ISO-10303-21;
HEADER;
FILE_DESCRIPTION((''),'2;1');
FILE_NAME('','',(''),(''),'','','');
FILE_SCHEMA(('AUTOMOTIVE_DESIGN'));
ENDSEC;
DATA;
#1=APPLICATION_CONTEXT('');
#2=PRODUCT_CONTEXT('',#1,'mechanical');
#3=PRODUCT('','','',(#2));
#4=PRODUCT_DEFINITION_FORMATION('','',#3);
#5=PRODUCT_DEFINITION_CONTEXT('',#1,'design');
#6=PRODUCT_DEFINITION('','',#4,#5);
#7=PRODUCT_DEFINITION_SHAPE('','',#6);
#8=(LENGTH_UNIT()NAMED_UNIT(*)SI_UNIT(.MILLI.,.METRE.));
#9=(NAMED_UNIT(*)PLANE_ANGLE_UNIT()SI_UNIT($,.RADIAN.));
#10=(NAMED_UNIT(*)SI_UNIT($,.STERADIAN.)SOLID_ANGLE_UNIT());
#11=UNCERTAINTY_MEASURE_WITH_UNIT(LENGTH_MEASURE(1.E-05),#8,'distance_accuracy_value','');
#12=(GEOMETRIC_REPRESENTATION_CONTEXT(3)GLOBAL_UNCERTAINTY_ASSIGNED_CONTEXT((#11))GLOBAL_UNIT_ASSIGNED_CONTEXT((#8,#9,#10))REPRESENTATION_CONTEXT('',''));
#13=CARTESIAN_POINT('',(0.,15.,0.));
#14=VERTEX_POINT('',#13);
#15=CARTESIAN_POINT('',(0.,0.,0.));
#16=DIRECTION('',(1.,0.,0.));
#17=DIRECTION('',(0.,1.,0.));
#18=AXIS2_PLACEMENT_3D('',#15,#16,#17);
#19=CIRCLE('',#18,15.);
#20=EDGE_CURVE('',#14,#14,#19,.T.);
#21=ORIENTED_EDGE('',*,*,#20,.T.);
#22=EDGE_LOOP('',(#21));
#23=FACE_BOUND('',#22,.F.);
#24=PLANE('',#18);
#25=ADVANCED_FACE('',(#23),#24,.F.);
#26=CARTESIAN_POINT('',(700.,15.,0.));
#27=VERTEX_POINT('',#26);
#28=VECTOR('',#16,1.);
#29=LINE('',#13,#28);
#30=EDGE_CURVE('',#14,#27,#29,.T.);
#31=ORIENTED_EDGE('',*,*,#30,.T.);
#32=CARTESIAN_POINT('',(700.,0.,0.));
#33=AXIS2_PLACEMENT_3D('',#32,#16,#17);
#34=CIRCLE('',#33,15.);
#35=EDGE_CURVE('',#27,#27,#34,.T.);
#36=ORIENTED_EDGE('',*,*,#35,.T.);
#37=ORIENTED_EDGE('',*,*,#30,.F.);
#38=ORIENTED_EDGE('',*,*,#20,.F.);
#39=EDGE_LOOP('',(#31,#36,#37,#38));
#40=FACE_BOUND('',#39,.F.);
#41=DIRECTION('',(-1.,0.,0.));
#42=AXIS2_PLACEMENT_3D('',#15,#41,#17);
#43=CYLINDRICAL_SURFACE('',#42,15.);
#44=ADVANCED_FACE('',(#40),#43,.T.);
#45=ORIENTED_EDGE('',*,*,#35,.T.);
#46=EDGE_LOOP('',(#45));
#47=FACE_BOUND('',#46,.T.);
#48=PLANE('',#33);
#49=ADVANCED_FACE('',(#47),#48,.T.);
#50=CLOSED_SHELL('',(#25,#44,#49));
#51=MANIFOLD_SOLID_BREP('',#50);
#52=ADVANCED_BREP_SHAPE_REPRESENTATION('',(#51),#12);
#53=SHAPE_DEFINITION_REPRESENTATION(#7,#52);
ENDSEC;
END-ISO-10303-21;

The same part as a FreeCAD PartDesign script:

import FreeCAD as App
import Part
import Sketcher
Q = App.Units.Quantity

doc = App.newDocument("Part")
body = doc.addObject("PartDesign::Body", "Body")

# Sketch on YZ plane
sketch1 = body.newObject("Sketcher::SketchObject", "Sketch")
sketch1.AttachmentSupport = (doc.getObject("YZ_Plane"), [""])
sketch1.MapMode = "FlatFace"
sketch1.addGeometry(Part.Circle(App.Vector(0, 0, 0), App.Vector(0, 0, 1), 15), False)
sketch1.addConstraint([
    Sketcher.Constraint("Coincident", 0, 3, -1, 1),
    Sketcher.Constraint("Diameter", 0, Q("30 mm")),
])
pad1 = body.newObject("PartDesign::Pad", "Pad")
pad1.Profile = sketch1
pad1.Length = 700

doc.recompute()
